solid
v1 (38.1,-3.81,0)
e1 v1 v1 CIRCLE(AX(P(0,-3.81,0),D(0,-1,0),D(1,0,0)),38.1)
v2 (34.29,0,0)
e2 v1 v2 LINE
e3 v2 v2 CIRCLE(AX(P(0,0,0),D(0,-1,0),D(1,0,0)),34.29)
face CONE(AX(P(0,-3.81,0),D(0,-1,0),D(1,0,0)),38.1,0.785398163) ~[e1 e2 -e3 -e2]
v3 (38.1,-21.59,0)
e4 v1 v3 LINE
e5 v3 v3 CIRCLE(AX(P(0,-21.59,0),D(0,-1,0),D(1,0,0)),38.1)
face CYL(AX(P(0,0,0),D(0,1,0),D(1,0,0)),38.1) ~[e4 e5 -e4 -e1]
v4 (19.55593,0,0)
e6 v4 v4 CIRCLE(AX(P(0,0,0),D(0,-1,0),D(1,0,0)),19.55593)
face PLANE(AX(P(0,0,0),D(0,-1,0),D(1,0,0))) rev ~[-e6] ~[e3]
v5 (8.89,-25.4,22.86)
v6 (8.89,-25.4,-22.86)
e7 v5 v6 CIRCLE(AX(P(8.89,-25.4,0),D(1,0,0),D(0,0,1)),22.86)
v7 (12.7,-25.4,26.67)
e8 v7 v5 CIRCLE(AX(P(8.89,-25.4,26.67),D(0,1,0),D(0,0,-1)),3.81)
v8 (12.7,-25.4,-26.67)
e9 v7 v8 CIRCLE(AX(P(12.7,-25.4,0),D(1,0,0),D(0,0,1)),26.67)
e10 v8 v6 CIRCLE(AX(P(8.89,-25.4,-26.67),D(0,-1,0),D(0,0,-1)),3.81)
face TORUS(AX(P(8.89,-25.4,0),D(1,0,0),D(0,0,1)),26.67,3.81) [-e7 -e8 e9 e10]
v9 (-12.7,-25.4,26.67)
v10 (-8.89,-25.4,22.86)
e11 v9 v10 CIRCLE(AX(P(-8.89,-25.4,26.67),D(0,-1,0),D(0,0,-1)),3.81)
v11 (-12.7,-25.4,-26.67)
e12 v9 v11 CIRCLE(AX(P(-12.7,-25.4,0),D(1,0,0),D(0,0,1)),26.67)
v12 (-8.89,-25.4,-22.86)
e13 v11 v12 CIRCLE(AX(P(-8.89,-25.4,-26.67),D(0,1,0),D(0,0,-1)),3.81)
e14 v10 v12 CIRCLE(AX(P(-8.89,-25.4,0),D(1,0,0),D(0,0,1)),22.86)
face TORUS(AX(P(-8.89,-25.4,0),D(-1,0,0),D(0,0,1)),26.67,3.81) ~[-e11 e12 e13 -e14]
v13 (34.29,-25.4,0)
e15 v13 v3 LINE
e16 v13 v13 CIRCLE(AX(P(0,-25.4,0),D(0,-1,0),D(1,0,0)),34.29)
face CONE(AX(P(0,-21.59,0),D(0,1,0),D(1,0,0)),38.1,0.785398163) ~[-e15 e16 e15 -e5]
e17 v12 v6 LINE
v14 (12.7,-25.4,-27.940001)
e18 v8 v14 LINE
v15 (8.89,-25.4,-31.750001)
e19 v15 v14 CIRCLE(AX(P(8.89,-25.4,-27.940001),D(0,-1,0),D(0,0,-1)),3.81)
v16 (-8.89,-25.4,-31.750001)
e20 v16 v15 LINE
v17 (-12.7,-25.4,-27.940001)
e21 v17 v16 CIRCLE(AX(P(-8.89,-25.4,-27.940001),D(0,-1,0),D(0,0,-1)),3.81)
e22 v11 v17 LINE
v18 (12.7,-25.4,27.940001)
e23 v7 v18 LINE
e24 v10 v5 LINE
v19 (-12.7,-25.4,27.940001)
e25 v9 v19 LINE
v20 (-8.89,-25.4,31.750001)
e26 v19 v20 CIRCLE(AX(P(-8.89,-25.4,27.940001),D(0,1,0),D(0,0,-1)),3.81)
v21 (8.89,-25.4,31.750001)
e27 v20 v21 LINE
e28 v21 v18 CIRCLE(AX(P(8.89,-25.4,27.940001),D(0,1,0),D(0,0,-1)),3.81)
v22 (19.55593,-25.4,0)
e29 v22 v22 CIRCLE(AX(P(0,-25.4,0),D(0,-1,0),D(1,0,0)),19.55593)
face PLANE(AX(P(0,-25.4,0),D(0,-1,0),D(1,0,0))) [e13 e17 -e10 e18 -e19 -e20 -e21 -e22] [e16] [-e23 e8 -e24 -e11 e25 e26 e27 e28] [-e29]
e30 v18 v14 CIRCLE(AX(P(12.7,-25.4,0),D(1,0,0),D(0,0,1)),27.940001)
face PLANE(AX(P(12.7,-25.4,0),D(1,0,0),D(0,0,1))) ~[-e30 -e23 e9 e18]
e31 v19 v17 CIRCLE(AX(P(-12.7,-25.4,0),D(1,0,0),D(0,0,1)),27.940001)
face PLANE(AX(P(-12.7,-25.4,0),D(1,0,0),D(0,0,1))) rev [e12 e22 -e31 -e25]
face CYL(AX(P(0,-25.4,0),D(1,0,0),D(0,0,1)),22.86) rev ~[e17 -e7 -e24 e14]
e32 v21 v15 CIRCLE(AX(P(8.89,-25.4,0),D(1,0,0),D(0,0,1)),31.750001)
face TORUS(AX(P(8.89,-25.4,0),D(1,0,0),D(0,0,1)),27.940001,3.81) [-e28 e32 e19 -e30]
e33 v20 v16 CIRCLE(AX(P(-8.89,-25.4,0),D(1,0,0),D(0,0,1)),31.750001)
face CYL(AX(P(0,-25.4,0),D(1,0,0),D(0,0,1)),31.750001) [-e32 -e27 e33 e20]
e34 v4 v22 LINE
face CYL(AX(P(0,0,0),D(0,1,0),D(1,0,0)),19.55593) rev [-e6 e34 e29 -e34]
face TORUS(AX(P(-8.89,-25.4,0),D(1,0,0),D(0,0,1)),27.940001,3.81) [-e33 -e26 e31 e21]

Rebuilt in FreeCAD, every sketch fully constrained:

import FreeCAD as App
import Part
import Sketcher
from FreeCAD import Vector
Q = App.Units.Quantity


def edges_at(feature, points):
    """Names of the edges that pass closest to the given points."""
    edges = feature.Shape.Edges
    near = lambda p: min(range(len(edges)), key=lambda i: edges[i].distToShape(Part.Vertex(*p))[0])
    return sorted({f"Edge{near(p) + 1}" for p in points})

doc = App.newDocument("Part")
body = doc.addObject("PartDesign::Body", "Body")

# Sketch on XZ plane
sketch1 = doc.addObject("Sketcher::SketchObject", "Sketch")
body.addObject(sketch1)
sketch1.AttachmentSupport = (doc.XZ_Plane, [""])
sketch1.MapMode = "FlatFace"
sketch1.addGeometry(Part.Circle(Vector(0, 0, 0), Vector(0, 0, 1), 38.1), False)
sketch1.addGeometry(Part.Circle(Vector(0, 0, 0), Vector(0, 0, 1), 19.55593), False)
sketch1.addConstraint(Sketcher.Constraint("Coincident", 0, 3, -1, 1))
sketch1.addConstraint(Sketcher.Constraint("Coincident", 1, 3, -1, 1))
sketch1.addConstraint(Sketcher.Constraint("Diameter", 0, Q("3 in")))
sketch1.addConstraint(Sketcher.Constraint("Diameter", 1, 39.111861))
pad1 = doc.addObject("PartDesign::Pad", "Pad")
body.addObject(pad1)
pad1.Profile = sketch1
pad1.Length = Q("1 in")

# Sketch on XZ plane
sketch2 = doc.addObject("Sketcher::SketchObject", "Sketch001")
body.addObject(sketch2)
sketch2.AttachmentSupport = (doc.XZ_Plane, [""])
sketch2.MapMode = "FlatFace"
sketch2.AttachmentOffset = App.Placement(Vector(0, 0, 1 * 25.4), App.Rotation())
sketch2.addGeometry(Part.LineSegment(Vector(-12.7, 31.750001, 0), Vector(-12.7, 22.86, 0)), False)
sketch2.addGeometry(Part.LineSegment(Vector(-12.7, 22.86, 0), Vector(12.7, 22.86, 0)), False)
sketch2.addGeometry(Part.LineSegment(Vector(12.7, 22.86, 0), Vector(12.7, 31.750001, 0)), False)
sketch2.addGeometry(Part.LineSegment(Vector(12.7, 31.750001, 0), Vector(-12.7, 31.750001, 0)), False)
sketch2.addConstraint(Sketcher.Constraint("Coincident", 0, 2, 1, 1))
sketch2.addConstraint(Sketcher.Constraint("Coincident", 1, 2, 2, 1))
sketch2.addConstraint(Sketcher.Constraint("Coincident", 2, 2, 3, 1))
sketch2.addConstraint(Sketcher.Constraint("Coincident", 3, 2, 0, 1))
sketch2.addConstraint(Sketcher.Constraint("Vertical", 0))
sketch2.addConstraint(Sketcher.Constraint("Horizontal", 1))
sketch2.addConstraint(Sketcher.Constraint("Vertical", 2))
sketch2.addConstraint(Sketcher.Constraint("Horizontal", 3))
sketch2.addConstraint(Sketcher.Constraint("DistanceX", 1, 1, 1, 2, Q("1 in")))
sketch2.addConstraint(Sketcher.Constraint("DistanceY", 0, 2, 0, 1, Q("0.35 in")))
sketch2.addConstraint(Sketcher.Constraint("DistanceX", 0, 2, -1, 1, Q("0.5 in")))
sketch2.addConstraint(Sketcher.Constraint("DistanceY", -1, 1, 0, 2, Q("0.9 in")))
revolution = doc.addObject("PartDesign::Revolution", "Revolution")
body.addObject(revolution)
revolution.Profile = sketch2
revolution.ReferenceAxis = (sketch2, ["H_Axis"])
revolution.Angle = 180
doc.recompute()

fillet = doc.addObject("PartDesign::Fillet", "Fillet")
body.addObject(fillet)
fillet.Base = (revolution, edges_at(revolution, [
    (-12.7, -57.15, 0),
    (12.7, -57.15, 0),
    (12.7, -48.26, 0),
    (-12.7, -48.26, 0),
]))
fillet.Radius = Q("0.15 in")
doc.recompute()

chamfer = doc.addObject("PartDesign::Chamfer", "Chamfer")
body.addObject(chamfer)
chamfer.Base = (fillet, edges_at(fillet, [(38.1, -12.7, 0), (-38.1, 0, 0), (-38.1, -25.4, 0)]))
chamfer.Size = Q("0.15 in")

doc.recompute()
